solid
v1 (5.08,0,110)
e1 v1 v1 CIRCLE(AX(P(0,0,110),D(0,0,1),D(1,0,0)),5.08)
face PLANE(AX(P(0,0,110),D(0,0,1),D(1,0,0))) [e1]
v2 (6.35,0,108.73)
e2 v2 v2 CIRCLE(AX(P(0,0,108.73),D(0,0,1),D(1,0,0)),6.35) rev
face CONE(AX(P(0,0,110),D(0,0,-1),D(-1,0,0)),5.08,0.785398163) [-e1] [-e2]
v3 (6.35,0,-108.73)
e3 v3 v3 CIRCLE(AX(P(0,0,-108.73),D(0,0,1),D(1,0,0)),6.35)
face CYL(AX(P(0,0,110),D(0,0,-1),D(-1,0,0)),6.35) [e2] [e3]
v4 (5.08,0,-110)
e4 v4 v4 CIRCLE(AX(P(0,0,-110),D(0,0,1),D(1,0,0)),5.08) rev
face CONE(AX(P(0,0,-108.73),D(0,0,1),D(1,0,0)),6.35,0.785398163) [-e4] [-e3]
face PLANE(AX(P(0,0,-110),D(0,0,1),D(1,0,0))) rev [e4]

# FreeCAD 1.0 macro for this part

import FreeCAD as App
import Part
import Sketcher
from FreeCAD import Vector
Q = App.Units.Quantity


def edges_at(feature, points):
    """Names of the edges that pass closest to the given points."""
    edges = feature.Shape.Edges
    near = lambda p: min(range(len(edges)), key=lambda i: edges[i].distToShape(Part.Vertex(*p))[0])
    return sorted({f"Edge{near(p) + 1}" for p in points})

doc = App.newDocument("Part")
params = doc.addObject("Spreadsheet::Sheet", "Params")
for row, (alias, value) in enumerate([
    ("sketch1_diameter", "0.5 in"),
    ("pad1_length", "220 mm"),
    ("chamfer_size", "0.05 in"),
], start=1):
    params.set(f"A{row}", alias)
    params.set(f"B{row}", "=" + value)
    params.setAlias(f"B{row}", alias)

body = doc.addObject("PartDesign::Body", "Body")

sketch1 = body.newObject("Sketcher::SketchObject", "Sketch")
sketch1.AttachmentSupport = (doc.getObject("XY_Plane"), [""])
sketch1.MapMode = "FlatFace"
sketch1.addGeometry(Part.Circle(Vector(0, 0, 0), Vector(0, 0, 1), 6), False)
sketch1.addConstraint([
    Sketcher.Constraint("Coincident", 0, 3, -1, 1),
    Sketcher.Constraint("Diameter", 0, Q("0.5 in")),
])
sketch1.setExpression("Constraints[1]", "Params.sketch1_diameter")
pad1 = body.newObject("PartDesign::Pad", "Pad")
pad1.Profile = sketch1
pad1.setExpression("Length", "Params.pad1_length")
pad1.Midplane = True
doc.recompute()

chamfer = body.newObject("PartDesign::Chamfer", "Chamfer")
chamfer.Base = (pad1, edges_at(pad1, [(-6.35, 0, -110), (-6.35, 0, 110)]))
chamfer.setExpression("Size", "Params.chamfer_size")

doc.recompute()
